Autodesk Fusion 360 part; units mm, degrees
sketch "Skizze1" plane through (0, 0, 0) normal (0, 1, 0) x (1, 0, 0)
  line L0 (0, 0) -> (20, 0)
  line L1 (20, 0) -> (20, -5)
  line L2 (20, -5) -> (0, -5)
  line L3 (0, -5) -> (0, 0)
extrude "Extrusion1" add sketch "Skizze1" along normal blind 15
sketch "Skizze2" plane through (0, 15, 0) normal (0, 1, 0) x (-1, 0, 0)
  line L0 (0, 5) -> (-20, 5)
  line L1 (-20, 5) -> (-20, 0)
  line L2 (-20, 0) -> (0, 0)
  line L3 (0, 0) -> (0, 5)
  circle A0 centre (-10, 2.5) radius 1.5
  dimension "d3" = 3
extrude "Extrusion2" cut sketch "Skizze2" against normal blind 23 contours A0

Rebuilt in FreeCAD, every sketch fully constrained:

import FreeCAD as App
import Part
import Sketcher

V = App.Vector


def add_polygon(sketch, points):
    """Adds a closed chain of lines whose ends are joined by coincident constraints."""
    first, n = sketch.GeometryCount, len(points)
    for a, b in zip(points, points[1:] + points[:1]):
        sketch.addGeometry(Part.LineSegment(App.Vector(*a, 0), App.Vector(*b, 0)), False)
    for i in range(n):
        sketch.addConstraint(Sketcher.Constraint("Coincident", first + i, 2, first + (i + 1) % n, 1))

doc = App.newDocument("Part")
body = doc.addObject("PartDesign::Body", "Body")

# Sketch on XZ plane
sketch1 = body.newObject("Sketcher::SketchObject", "Sketch")
sketch1.AttachmentSupport = (doc.getObject("XZ_Plane"), [""])
sketch1.MapMode = "FlatFace"
add_polygon(sketch1, [(20, 0), (0, 0), (0, 5), (20, 5)])  # lines 0-3
sketch1.addConstraint(Sketcher.Constraint("Horizontal", 0))
sketch1.addConstraint(Sketcher.Constraint("Vertical", 1))
sketch1.addConstraint(Sketcher.Constraint("Horizontal", 2))
sketch1.addConstraint(Sketcher.Constraint("Vertical", 3))
sketch1.addConstraint(Sketcher.Constraint("Coincident", 0, 2, -1, 1))
sketch1.addConstraint(Sketcher.Constraint("DistanceX", 0, 2, 0, 1, 20.0))
sketch1.addConstraint(Sketcher.Constraint("DistanceY", 1, 1, 1, 2, 5.0))
pad1 = body.newObject("PartDesign::Pad", "Pad")
pad1.Profile = sketch1
pad1.Length = 15
pad1.Reversed = True

# Sketch on XZ plane
sketch2 = body.newObject("Sketcher::SketchObject", "Sketch001")
sketch2.AttachmentSupport = (doc.getObject("XZ_Plane"), [""])
sketch2.MapMode = "FlatFace"
sketch2.AttachmentOffset = App.Placement(V(0, 0, -15), App.Rotation())
sketch2.addGeometry(Part.Circle(V(10, 2.5, 0), V(0, 0, 1), 1.5), False)
sketch2.addConstraint(Sketcher.Constraint("Diameter", 0, 3.0))
sketch2.addConstraint(Sketcher.Constraint("DistanceX", -1, 1, 0, 3, 10.0))
sketch2.addConstraint(Sketcher.Constraint("DistanceY", -1, 1, 0, 3, 2.5))
pocket1 = body.newObject("PartDesign::Pocket", "Pocket")
pocket1.Profile = sketch2
pocket1.Length = 23
pocket1.Reversed = True

doc.recompute()
